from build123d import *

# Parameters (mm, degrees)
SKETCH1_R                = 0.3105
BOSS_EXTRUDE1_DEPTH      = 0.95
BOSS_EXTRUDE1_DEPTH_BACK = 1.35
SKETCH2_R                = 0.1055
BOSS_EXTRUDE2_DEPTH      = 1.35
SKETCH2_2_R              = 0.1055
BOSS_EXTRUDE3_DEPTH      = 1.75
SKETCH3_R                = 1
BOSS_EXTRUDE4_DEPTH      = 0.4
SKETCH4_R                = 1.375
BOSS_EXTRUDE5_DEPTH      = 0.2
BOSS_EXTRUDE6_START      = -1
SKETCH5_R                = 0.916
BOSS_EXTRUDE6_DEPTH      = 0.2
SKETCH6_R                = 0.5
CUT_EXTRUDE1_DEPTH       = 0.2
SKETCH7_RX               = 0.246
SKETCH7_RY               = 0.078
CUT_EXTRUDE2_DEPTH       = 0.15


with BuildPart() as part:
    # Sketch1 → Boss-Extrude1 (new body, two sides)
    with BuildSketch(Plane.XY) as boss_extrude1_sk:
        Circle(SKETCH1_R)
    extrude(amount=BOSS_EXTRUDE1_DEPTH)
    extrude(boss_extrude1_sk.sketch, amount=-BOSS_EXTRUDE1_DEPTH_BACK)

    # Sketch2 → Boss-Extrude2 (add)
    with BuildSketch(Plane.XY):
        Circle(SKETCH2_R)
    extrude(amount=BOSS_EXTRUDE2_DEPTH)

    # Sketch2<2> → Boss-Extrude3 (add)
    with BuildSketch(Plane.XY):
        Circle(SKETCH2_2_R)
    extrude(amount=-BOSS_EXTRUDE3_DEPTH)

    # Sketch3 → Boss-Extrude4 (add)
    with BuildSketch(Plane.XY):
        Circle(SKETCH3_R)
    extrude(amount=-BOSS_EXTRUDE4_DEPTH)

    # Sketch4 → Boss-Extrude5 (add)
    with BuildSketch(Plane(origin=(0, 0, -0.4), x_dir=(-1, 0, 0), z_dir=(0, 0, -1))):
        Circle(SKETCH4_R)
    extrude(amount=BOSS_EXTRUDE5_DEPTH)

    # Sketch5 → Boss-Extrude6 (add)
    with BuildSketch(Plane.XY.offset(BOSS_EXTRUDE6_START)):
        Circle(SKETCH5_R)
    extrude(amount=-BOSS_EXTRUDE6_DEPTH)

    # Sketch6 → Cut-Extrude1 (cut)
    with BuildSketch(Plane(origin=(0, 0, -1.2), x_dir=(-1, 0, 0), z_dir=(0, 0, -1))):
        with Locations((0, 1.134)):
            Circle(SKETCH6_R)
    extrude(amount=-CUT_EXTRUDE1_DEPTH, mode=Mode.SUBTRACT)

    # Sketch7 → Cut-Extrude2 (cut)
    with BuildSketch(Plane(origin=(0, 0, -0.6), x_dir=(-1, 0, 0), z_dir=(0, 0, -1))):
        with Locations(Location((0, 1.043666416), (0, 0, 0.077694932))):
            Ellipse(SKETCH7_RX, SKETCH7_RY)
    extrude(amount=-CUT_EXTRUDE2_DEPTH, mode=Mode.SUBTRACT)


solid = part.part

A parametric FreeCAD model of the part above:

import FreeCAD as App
import Part
import Sketcher

doc = App.newDocument("Part")
body = doc.addObject("PartDesign::Body", "Body")

sketch1 = body.newObject("Sketcher::SketchObject", "Sketch")
sketch1.AttachmentSupport = (doc.getObject("XY_Plane"), [""])
sketch1.MapMode = "FlatFace"
sketch1.addGeometry(Part.Circle(App.Vector(0, 0, 0), App.Vector(0, 0, 1), 0.31), False)
sketch1.addConstraint([
    Sketcher.Constraint("Coincident", 0, 3, -1, 1),
    Sketcher.Constraint("Diameter", 0, 0.621),
])
pad1 = body.newObject("PartDesign::Pad", "Pad")
pad1.Profile = sketch1
pad1.Type = "TwoLengths"
pad1.Length = 0.95
pad1.Length2 = 1.35

sketch2 = body.newObject("Sketcher::SketchObject", "Sketch001")
sketch2.AttachmentSupport = (doc.getObject("XY_Plane"), [""])
sketch2.MapMode = "FlatFace"
sketch2.addGeometry(Part.Circle(App.Vector(0, 0, 0), App.Vector(0, 0, 1), 0.11), False)
sketch2.addConstraint([
    Sketcher.Constraint("Coincident", 0, 3, -1, 1),
    Sketcher.Constraint("Diameter", 0, 0.211),
])
pad2 = body.newObject("PartDesign::Pad", "Pad001")
pad2.Profile = sketch2
pad2.Length = 1.35

sketch3 = body.newObject("Sketcher::SketchObject", "Sketch002")
sketch3.AttachmentSupport = (doc.getObject("XY_Plane"), [""])
sketch3.MapMode = "FlatFace"
sketch3.addGeometry(Part.Circle(App.Vector(0, 0, 0), App.Vector(0, 0, 1), 0.11), False)
sketch3.addConstraint([
    Sketcher.Constraint("Coincident", 0, 3, -1, 1),
    Sketcher.Constraint("Diameter", 0, 0.211),
])
pad3 = body.newObject("PartDesign::Pad", "Pad002")
pad3.Profile = sketch3
pad3.Length = 1.75
pad3.Reversed = True

sketch4 = body.newObject("Sketcher::SketchObject", "Sketch003")
sketch4.AttachmentSupport = (doc.getObject("XY_Plane"), [""])
sketch4.MapMode = "FlatFace"
sketch4.addGeometry(Part.Circle(App.Vector(0, 0, 0), App.Vector(0, 0, 1), 1), False)
sketch4.addConstraint([
    Sketcher.Constraint("Coincident", 0, 3, -1, 1),
    Sketcher.Constraint("Diameter", 0, 2.0),
])
pad4 = body.newObject("PartDesign::Pad", "Pad003")
pad4.Profile = sketch4
pad4.Length = 0.4
pad4.Reversed = True

sketch5 = body.newObject("Sketcher::SketchObject", "Sketch004")
sketch5.AttachmentSupport = (doc.getObject("XY_Plane"), [""])
sketch5.MapMode = "FlatFace"
sketch5.AttachmentOffset = App.Placement(App.Vector(0, 0, -0.4), App.Rotation())
sketch5.addGeometry(Part.Circle(App.Vector(0, 0, 0), App.Vector(0, 0, 1), 1.4), False)
sketch5.addConstraint([
    Sketcher.Constraint("Coincident", 0, 3, -1, 1),
    Sketcher.Constraint("Diameter", 0, 2.75),
])
pad5 = body.newObject("PartDesign::Pad", "Pad004")
pad5.Profile = sketch5
pad5.Length = 0.2
pad5.Reversed = True

sketch6 = body.newObject("Sketcher::SketchObject", "Sketch005")
sketch6.AttachmentSupport = (doc.getObject("XY_Plane"), [""])
sketch6.MapMode = "FlatFace"
sketch6.AttachmentOffset = App.Placement(App.Vector(0, 0, -1), App.Rotation())
sketch6.addGeometry(Part.Circle(App.Vector(0, 0, 0), App.Vector(0, 0, 1), 0.9), False)
sketch6.addConstraint([
    Sketcher.Constraint("Coincident", 0, 3, -1, 1),
    Sketcher.Constraint("Diameter", 0, 1.832),
])
pad6 = body.newObject("PartDesign::Pad", "Pad005")
pad6.Profile = sketch6
pad6.Length = 0.2
pad6.Reversed = True

sketch7 = body.newObject("Sketcher::SketchObject", "Sketch006")
sketch7.AttachmentSupport = (doc.getObject("XY_Plane"), [""])
sketch7.MapMode = "FlatFace"
sketch7.AttachmentOffset = App.Placement(App.Vector(0, 0, -1.2), App.Rotation())
sketch7.addGeometry(Part.Circle(App.Vector(0, 1.1, 0), App.Vector(0, 0, 1), 0.5), False)
sketch7.addConstraint([
    Sketcher.Constraint("PointOnObject", 0, 3, -2),
    Sketcher.Constraint("Diameter", 0, 1.0),
    Sketcher.Constraint("DistanceY", -1, 1, 0, 3, 1.134),
])
pocket1 = body.newObject("PartDesign::Pocket", "Pocket")
pocket1.Profile = sketch7
pocket1.Length = 0.2
pocket1.Reversed = True

sketch8 = body.newObject("Sketcher::SketchObject", "Sketch007")
sketch8.AttachmentSupport = (doc.getObject("XY_Plane"), [""])
sketch8.MapMode = "FlatFace"
sketch8.AttachmentOffset = App.Placement(App.Vector(0, 0, -0.6), App.Rotation())
sketch8.addGeometry(Part.Ellipse(App.Vector(-0.246, 1.044, 0), App.Vector(-0.000106, 0.965666, 0), App.Vector(0, 1.043666, 0)), False)
sketch8.addConstraint(Sketcher.Constraint("Block", 0))
pocket2 = body.newObject("PartDesign::Pocket", "Pocket001")
pocket2.Profile = sketch8
pocket2.Length = 0.15
pocket2.Reversed = True

doc.recompute()
